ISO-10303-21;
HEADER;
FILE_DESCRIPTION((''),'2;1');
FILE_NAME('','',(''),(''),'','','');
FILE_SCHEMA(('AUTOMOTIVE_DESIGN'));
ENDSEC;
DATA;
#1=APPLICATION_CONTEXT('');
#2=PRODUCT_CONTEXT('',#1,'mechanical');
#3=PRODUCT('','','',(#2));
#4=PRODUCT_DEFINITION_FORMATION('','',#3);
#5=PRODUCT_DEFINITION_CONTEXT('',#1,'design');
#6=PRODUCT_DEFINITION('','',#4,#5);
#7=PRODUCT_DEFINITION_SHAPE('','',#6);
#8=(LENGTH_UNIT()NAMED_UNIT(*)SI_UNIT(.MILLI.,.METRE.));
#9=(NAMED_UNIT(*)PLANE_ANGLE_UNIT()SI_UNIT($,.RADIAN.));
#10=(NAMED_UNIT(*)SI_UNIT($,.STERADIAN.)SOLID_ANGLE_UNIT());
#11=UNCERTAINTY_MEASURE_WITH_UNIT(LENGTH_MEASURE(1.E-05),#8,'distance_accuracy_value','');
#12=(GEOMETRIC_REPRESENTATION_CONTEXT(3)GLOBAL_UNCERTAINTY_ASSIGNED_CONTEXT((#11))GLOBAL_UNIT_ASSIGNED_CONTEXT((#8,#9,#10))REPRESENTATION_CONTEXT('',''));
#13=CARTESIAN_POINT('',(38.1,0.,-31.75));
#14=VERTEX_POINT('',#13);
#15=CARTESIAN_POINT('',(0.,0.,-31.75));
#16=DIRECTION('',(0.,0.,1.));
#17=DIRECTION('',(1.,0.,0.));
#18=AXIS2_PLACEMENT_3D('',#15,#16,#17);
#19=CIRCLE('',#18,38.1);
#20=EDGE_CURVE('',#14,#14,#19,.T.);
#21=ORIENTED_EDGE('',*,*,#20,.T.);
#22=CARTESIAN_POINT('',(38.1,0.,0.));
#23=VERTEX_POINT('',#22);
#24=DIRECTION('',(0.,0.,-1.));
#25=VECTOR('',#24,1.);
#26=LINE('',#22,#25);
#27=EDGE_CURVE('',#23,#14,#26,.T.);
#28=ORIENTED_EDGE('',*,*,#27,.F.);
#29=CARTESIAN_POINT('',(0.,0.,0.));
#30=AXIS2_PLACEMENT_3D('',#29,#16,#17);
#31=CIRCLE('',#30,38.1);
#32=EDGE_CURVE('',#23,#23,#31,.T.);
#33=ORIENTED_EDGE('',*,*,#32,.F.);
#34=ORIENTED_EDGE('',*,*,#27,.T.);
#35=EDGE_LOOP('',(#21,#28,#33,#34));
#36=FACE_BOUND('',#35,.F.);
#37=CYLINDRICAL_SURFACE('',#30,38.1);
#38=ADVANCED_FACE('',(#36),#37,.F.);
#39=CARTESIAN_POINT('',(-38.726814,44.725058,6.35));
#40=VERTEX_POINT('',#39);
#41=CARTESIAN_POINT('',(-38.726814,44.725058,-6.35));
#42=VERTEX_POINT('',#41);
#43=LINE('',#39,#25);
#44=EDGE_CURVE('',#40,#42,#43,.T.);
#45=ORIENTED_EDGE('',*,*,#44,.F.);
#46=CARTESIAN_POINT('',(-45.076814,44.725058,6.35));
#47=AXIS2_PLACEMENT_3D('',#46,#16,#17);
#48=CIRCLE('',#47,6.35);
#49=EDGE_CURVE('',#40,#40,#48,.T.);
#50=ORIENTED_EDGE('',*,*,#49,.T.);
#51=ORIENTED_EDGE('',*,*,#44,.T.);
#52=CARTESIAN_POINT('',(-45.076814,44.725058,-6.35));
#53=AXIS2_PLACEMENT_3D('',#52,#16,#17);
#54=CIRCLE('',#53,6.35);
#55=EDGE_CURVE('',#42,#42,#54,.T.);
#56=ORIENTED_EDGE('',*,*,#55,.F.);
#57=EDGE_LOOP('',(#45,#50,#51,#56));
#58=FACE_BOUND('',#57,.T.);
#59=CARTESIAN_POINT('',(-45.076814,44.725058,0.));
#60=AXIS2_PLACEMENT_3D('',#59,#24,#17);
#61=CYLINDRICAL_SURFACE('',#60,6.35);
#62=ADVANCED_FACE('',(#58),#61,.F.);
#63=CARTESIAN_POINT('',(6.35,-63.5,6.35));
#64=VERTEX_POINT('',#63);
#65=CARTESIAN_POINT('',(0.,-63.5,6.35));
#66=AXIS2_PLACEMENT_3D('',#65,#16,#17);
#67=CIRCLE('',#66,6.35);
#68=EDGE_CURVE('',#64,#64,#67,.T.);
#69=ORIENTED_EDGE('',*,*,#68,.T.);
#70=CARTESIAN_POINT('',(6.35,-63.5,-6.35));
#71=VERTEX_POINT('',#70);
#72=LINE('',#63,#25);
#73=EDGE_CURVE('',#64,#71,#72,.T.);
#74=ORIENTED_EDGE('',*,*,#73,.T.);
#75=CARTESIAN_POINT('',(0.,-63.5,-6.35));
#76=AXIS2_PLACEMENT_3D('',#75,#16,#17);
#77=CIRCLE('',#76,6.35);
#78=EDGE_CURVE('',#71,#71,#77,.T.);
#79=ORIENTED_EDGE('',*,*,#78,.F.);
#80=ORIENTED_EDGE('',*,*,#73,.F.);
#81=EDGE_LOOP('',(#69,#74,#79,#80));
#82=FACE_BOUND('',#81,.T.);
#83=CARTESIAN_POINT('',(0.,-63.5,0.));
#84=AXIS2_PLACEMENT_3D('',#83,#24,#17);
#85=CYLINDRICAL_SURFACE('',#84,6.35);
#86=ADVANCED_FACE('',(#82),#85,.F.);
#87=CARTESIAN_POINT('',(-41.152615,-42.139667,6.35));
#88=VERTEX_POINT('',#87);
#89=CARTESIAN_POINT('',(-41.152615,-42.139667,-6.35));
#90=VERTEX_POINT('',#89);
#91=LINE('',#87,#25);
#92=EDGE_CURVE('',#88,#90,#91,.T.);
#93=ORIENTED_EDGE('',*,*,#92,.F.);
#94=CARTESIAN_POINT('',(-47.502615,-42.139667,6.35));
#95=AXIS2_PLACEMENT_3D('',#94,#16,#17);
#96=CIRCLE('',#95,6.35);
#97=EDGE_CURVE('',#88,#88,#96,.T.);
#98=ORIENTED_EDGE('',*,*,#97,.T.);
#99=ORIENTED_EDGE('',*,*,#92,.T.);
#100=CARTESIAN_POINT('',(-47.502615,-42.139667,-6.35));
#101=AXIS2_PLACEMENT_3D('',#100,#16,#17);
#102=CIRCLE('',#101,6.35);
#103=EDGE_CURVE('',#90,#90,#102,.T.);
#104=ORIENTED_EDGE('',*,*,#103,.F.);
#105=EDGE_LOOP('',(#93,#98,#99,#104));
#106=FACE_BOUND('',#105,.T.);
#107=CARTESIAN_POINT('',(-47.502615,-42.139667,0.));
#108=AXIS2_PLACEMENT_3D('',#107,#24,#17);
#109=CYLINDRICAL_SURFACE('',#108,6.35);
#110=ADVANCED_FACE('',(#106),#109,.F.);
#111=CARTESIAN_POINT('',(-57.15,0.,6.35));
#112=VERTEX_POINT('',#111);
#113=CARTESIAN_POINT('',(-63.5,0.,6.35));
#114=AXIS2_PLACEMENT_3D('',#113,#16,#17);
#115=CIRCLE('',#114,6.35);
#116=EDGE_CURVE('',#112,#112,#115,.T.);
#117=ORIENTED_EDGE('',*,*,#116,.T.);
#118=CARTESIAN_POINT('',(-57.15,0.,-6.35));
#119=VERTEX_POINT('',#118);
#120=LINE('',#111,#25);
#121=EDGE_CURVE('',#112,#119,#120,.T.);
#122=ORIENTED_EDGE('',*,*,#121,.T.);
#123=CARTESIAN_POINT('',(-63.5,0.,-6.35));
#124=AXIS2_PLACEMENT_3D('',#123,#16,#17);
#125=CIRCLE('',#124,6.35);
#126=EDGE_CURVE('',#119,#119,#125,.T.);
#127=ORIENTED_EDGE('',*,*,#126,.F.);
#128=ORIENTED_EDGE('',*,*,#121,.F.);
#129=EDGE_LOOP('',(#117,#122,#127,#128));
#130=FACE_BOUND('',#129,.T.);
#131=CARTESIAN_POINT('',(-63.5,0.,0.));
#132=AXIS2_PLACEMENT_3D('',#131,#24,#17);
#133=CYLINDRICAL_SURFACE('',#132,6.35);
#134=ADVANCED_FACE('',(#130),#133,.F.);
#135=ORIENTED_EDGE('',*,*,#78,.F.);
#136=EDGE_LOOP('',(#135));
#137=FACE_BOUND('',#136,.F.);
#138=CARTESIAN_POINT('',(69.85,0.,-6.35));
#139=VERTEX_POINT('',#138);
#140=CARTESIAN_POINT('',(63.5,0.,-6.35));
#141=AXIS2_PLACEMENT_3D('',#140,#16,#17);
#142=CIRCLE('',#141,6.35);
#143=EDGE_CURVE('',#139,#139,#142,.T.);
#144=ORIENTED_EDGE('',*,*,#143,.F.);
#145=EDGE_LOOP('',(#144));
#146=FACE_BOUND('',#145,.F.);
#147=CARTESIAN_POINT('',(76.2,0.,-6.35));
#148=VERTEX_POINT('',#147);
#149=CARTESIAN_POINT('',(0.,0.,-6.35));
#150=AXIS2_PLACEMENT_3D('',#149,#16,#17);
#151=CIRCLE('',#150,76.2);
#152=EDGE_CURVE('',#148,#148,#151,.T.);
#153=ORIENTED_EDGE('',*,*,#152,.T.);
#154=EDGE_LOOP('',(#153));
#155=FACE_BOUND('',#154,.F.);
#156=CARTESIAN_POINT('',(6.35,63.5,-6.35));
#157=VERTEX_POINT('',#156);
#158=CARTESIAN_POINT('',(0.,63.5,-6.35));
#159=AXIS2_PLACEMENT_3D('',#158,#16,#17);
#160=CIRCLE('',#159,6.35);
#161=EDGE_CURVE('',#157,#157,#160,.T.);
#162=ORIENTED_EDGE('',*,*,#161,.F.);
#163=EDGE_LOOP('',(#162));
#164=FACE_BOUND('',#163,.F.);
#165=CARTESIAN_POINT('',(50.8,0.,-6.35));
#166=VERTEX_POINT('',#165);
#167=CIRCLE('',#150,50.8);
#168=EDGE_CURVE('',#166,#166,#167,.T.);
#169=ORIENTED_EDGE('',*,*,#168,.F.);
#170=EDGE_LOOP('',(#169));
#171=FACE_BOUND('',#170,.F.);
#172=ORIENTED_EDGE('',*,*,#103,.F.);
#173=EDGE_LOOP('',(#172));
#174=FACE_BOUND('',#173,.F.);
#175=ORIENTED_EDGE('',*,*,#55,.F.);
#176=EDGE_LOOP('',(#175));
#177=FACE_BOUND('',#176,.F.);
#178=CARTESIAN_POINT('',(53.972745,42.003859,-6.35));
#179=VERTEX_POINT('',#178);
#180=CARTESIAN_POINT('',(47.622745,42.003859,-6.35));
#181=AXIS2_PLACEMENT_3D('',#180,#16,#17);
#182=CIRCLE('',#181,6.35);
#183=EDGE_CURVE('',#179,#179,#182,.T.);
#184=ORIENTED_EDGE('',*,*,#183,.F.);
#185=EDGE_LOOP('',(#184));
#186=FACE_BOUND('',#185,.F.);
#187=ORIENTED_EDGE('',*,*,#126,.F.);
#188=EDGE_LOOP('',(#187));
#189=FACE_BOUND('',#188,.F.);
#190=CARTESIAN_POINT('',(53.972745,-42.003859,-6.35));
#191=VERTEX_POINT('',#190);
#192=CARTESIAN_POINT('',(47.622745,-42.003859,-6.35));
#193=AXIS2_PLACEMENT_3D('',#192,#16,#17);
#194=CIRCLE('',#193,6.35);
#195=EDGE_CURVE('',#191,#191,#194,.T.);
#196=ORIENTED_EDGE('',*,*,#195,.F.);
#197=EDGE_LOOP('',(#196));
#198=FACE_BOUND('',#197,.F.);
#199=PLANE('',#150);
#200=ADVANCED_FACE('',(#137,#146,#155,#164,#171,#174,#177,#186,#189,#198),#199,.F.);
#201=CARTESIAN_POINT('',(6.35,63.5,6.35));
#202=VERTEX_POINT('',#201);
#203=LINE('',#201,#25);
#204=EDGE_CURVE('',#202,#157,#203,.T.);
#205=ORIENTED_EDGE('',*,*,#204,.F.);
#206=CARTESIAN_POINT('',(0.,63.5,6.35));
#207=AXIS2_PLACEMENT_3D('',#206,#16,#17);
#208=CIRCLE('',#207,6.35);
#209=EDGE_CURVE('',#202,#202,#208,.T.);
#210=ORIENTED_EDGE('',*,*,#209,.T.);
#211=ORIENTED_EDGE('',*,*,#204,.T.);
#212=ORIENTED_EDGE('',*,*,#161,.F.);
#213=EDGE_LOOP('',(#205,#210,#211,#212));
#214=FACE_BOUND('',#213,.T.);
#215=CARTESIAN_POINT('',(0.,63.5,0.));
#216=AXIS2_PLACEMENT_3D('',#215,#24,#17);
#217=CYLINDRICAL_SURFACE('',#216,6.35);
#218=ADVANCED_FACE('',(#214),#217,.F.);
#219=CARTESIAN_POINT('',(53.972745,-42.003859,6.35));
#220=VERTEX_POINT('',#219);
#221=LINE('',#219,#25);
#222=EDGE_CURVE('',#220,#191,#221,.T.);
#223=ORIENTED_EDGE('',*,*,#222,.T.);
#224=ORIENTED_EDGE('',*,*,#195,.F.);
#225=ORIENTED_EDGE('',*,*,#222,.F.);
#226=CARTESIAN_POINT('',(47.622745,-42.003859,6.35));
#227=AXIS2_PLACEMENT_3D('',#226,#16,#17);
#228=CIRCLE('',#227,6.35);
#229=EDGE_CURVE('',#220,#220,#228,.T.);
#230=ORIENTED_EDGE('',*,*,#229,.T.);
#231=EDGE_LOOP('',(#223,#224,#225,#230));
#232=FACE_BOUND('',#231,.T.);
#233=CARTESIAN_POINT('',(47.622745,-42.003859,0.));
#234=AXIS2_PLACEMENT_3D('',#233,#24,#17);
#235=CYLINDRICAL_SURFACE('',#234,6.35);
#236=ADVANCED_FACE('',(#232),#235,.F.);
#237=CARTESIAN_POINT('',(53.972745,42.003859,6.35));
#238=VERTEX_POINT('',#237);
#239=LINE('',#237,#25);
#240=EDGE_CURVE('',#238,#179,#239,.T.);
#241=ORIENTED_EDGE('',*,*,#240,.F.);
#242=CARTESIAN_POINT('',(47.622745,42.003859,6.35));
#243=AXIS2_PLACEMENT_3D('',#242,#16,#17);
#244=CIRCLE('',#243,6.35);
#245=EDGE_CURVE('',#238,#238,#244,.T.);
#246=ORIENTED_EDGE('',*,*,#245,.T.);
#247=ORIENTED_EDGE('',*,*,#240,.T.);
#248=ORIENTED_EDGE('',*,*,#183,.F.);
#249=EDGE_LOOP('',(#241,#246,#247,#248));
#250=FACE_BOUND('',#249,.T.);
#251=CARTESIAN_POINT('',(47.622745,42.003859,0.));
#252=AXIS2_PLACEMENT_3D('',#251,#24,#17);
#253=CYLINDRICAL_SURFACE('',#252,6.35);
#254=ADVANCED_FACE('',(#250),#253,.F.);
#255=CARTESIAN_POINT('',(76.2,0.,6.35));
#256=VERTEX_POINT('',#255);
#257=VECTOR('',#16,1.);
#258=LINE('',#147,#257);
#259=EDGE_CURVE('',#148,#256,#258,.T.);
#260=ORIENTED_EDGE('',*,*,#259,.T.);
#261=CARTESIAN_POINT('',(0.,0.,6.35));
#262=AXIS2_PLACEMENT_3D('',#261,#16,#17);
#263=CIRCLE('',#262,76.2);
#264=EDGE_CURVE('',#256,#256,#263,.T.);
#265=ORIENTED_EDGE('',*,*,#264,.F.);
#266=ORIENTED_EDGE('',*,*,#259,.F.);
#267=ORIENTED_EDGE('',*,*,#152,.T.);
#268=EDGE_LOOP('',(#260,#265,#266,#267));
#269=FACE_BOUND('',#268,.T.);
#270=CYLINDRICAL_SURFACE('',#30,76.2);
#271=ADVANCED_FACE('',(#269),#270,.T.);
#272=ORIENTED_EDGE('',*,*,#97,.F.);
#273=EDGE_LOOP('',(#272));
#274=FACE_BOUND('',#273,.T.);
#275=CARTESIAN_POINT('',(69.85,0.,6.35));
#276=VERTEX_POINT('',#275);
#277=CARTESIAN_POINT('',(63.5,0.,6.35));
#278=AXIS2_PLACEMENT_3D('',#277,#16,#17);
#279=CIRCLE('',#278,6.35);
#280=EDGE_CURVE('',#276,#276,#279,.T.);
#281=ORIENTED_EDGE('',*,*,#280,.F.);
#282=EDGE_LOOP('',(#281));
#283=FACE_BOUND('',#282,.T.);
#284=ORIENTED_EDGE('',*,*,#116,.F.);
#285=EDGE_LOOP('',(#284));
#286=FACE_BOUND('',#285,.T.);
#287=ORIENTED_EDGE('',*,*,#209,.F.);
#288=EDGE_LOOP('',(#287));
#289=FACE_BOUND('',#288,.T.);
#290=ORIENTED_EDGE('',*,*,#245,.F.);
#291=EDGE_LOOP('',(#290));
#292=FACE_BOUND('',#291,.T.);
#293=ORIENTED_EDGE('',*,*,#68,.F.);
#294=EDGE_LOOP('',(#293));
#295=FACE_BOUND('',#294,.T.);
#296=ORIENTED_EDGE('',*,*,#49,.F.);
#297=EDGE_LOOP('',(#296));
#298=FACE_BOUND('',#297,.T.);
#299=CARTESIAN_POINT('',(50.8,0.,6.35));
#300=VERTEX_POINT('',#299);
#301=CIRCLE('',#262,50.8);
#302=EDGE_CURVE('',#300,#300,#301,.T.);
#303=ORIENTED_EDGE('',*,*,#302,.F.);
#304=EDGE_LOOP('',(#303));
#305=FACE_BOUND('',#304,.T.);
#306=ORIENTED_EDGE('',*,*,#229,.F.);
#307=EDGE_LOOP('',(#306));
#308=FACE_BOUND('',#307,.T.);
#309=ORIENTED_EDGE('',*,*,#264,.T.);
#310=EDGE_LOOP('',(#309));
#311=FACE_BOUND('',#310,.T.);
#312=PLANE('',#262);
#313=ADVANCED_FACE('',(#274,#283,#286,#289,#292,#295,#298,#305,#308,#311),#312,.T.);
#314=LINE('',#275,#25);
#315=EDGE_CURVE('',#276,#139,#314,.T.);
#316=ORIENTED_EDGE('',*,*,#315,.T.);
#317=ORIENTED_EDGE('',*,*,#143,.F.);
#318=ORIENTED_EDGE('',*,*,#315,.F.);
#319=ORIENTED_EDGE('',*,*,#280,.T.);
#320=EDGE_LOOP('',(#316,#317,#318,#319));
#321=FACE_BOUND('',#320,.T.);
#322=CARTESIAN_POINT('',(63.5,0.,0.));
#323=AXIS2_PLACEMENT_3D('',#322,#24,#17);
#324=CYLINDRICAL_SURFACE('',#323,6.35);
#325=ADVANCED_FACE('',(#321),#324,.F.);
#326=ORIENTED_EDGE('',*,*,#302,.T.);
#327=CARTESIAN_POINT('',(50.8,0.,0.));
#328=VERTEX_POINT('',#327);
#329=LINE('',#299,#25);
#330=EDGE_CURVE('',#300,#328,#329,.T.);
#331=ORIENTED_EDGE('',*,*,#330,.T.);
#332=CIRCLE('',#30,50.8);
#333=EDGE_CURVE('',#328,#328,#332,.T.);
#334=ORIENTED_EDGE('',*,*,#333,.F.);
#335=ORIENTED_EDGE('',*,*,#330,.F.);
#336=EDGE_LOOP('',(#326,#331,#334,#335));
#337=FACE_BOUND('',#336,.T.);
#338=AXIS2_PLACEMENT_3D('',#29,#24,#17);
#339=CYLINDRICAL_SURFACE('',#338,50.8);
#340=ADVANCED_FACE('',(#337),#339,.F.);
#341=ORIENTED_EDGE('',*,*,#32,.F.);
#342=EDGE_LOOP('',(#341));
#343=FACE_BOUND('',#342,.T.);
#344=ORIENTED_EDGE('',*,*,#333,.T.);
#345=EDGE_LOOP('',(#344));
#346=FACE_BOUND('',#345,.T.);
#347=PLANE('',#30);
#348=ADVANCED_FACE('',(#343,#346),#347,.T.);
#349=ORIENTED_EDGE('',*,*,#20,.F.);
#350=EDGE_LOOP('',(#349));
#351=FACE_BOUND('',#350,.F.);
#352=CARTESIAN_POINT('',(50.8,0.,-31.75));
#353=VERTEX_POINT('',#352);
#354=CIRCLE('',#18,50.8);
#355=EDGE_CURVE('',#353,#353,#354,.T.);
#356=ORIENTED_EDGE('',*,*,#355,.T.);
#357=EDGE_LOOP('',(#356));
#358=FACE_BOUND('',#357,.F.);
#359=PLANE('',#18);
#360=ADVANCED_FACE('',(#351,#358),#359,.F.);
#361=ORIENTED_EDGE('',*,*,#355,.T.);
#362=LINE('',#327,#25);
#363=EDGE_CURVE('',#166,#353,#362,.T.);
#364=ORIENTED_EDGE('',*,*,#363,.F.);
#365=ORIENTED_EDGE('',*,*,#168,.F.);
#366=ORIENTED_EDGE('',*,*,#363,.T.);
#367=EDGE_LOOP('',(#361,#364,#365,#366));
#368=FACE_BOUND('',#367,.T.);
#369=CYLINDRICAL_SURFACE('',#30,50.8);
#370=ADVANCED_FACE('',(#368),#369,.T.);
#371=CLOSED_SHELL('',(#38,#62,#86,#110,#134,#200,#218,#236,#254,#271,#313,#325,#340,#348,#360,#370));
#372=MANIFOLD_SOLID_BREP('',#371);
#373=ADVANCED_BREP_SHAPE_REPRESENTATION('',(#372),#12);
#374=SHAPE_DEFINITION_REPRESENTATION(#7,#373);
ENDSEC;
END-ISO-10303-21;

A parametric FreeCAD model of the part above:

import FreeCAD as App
import Part
import Sketcher
Q = App.Units.Quantity

doc = App.newDocument("Part")
params = doc.addObject("Spreadsheet::Sheet", "Params")
for row, (alias, value) in enumerate([
    ("sketch1_diameter", "4 in"),
    ("sketch1_diameter2", "3 in"),
    ("pad1_length", "1.25 in"),
    ("sketch2_diameter", "6 in"),
    ("sketch2_diameter2", "4 in"),
    ("sketch2_diameter3", "0.5 in"),
    ("pad2_length", "0.5 in"),
], start=1):
    params.set(f"A{row}", alias)
    params.set(f"B{row}", "=" + value)
    params.setAlias(f"B{row}", alias)

body = doc.addObject("PartDesign::Body", "Body")

sketch1 = body.newObject("Sketcher::SketchObject", "Sketch")
sketch1.AttachmentSupport = (doc.getObject("XY_Plane"), [""])
sketch1.MapMode = "FlatFace"
sketch1.addGeometry([
    Part.Circle(App.Vector(0, 0, 0), App.Vector(0, 0, 1), 51),
    Part.Circle(App.Vector(0, 0, 0), App.Vector(0, 0, 1), 38),
], False)
sketch1.addConstraint([
    Sketcher.Constraint("Coincident", 0, 3, -1, 1),
    Sketcher.Constraint("Coincident", 1, 3, -1, 1),
    Sketcher.Constraint("Diameter", 0, Q("4 in")),
    Sketcher.Constraint("Diameter", 1, Q("3 in")),
])
sketch1.setExpression("Constraints[2]", "Params.sketch1_diameter")
sketch1.setExpression("Constraints[3]", "Params.sketch1_diameter2")
pad1 = body.newObject("PartDesign::Pad", "Pad")
pad1.Profile = sketch1
pad1.setExpression("Length", "Params.pad1_length")
pad1.Reversed = True

sketch2 = body.newObject("Sketcher::SketchObject", "Sketch001")
sketch2.AttachmentSupport = (doc.getObject("XY_Plane"), [""])
sketch2.MapMode = "FlatFace"
sketch2.addGeometry([
    Part.Circle(App.Vector(0, 0, 0), App.Vector(0, 0, 1), 76),
    Part.Circle(App.Vector(-48, -42, 0), App.Vector(0, 0, 1), 6),
    Part.Circle(App.Vector(0, -64, 0), App.Vector(0, 0, 1), 6),
    Part.Circle(App.Vector(48, -42, 0), App.Vector(0, 0, 1), 6),
    Part.Circle(App.Vector(-64, 0, 0), App.Vector(0, 0, 1), 6),
    Part.Circle(App.Vector(-45, 45, 0), App.Vector(0, 0, 1), 6),
    Part.Circle(App.Vector(0, 0, 0), App.Vector(0, 0, 1), 51),
    Part.Circle(App.Vector(64, 0, 0), App.Vector(0, 0, 1), 6),
    Part.Circle(App.Vector(0, 64, 0), App.Vector(0, 0, 1), 6),
    Part.Circle(App.Vector(48, 42, 0), App.Vector(0, 0, 1), 6),
], False)
sketch2.addConstraint([
    Sketcher.Constraint("Coincident", 0, 3, -1, 1),
    Sketcher.Constraint("Coincident", 6, 3, -1, 1),
    Sketcher.Constraint("Equal", 1, 2),
    Sketcher.Constraint("Equal", 2, 3),
    Sketcher.Constraint("Equal", 3, 4),
    Sketcher.Constraint("Equal", 4, 5),
    Sketcher.Constraint("Equal", 5, 7),
    Sketcher.Constraint("Equal", 7, 8),
    Sketcher.Constraint("Equal", 8, 9),
    Sketcher.Constraint("Symmetric", 4, 3, 7, 3, -1, 1),
    Sketcher.Constraint("Symmetric", 2, 3, 8, 3, -1, 1),
    Sketcher.Constraint("Symmetric", 3, 3, 9, 3, -1),
    Sketcher.Constraint("PointOnObject", 2, 3, -2),
    Sketcher.Constraint("PointOnObject", 4, 3, -1),
    Sketcher.Constraint("Diameter", 0, Q("6 in")),
    Sketcher.Constraint("Diameter", 6, Q("4 in")),
    Sketcher.Constraint("Diameter", 1, Q("0.5 in")),
    Sketcher.Constraint("DistanceY", 2, 3, -1, 1, Q("2.5 in")),
    Sketcher.Constraint("DistanceX", 4, 3, -1, 1, Q("2.5 in")),
    Sketcher.Constraint("DistanceX", 1, 3, 5, 3, 2.425801),
    Sketcher.Constraint("DistanceY", 3, 3, -1, 1, 42.003859),
    Sketcher.Constraint("DistanceX", 1, 3, 3, 3, 95.12536),
    Sketcher.Constraint("DistanceY", 1, 3, 3, 3, 0.135808),
    Sketcher.Constraint("DistanceX", 1, 3, -1, 1, 47.502615),
    Sketcher.Constraint("DistanceY", -1, 1, 5, 3, 44.725058),
])
sketch2.setExpression("Constraints[14]", "Params.sketch2_diameter")
sketch2.setExpression("Constraints[15]", "Params.sketch2_diameter2")
sketch2.setExpression("Constraints[16]", "Params.sketch2_diameter3")
pad2 = body.newObject("PartDesign::Pad", "Pad001")
pad2.Profile = sketch2
pad2.setExpression("Length", "Params.pad2_length")
pad2.Midplane = True

doc.recompute()
